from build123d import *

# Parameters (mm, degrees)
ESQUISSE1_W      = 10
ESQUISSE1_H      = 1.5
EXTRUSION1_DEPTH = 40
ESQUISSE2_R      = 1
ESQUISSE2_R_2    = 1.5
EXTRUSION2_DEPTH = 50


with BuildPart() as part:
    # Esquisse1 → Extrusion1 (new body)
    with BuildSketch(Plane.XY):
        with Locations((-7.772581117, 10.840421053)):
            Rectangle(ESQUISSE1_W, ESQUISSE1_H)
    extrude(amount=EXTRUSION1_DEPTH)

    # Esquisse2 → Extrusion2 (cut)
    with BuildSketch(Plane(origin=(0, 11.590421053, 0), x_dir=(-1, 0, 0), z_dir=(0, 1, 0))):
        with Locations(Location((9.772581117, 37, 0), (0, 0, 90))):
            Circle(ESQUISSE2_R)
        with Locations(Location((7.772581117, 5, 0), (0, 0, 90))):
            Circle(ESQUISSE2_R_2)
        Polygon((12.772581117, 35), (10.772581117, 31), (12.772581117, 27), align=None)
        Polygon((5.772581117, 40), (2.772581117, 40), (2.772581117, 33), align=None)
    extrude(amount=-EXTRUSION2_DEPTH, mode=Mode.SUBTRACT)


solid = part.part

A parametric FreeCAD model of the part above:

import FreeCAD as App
import Part
import Sketcher

V = App.Vector

doc = App.newDocument("Part")
body = doc.addObject("PartDesign::Body", "Body")

sketch1 = body.newObject("Sketcher::SketchObject", "Sketch")
sketch1.AttachmentSupport = (doc.getObject("XY_Plane"), [""])
sketch1.MapMode = "FlatFace"
sketch1.addGeometry(Part.LineSegment(V(-12.8, 11.6, 0), V(-12.8, 10.1, 0)), False)
sketch1.addGeometry(Part.LineSegment(V(-12.8, 10.1, 0), V(-2.8, 10.1, 0)), False)
sketch1.addGeometry(Part.LineSegment(V(-2.8, 10.1, 0), V(-2.8, 11.6, 0)), False)
sketch1.addGeometry(Part.LineSegment(V(-2.8, 11.6, 0), V(-12.8, 11.6, 0)), False)
sketch1.addConstraint(Sketcher.Constraint("Coincident", 0, 2, 1, 1))
sketch1.addConstraint(Sketcher.Constraint("Coincident", 1, 2, 2, 1))
sketch1.addConstraint(Sketcher.Constraint("Coincident", 2, 2, 3, 1))
sketch1.addConstraint(Sketcher.Constraint("Coincident", 3, 2, 0, 1))
sketch1.addConstraint(Sketcher.Constraint("Vertical", 0))
sketch1.addConstraint(Sketcher.Constraint("Horizontal", 1))
sketch1.addConstraint(Sketcher.Constraint("Vertical", 2))
sketch1.addConstraint(Sketcher.Constraint("Horizontal", 3))
sketch1.addConstraint(Sketcher.Constraint("DistanceX", 1, 1, 1, 2, 10.0))
sketch1.addConstraint(Sketcher.Constraint("DistanceY", 0, 2, 0, 1, 1.5))
sketch1.addConstraint(Sketcher.Constraint("DistanceX", 0, 2, -1, 1, 12.772581))
sketch1.addConstraint(Sketcher.Constraint("DistanceY", -1, 1, 0, 2, 10.090421))
pad1 = body.newObject("PartDesign::Pad", "Pad")
pad1.Profile = sketch1
pad1.Length = 40

sketch2 = body.newObject("Sketcher::SketchObject", "Sketch001")
sketch2.AttachmentSupport = (doc.getObject("XZ_Plane"), [""])
sketch2.MapMode = "FlatFace"
sketch2.AttachmentOffset = App.Placement(V(0, 0, -11.590421), App.Rotation())
sketch2.addGeometry(Part.Circle(V(-9.8, 37, 0), V(0, 0, 1), 1), False)
sketch2.addGeometry(Part.Circle(V(-7.8, 5, 0), V(0, 0, 1), 1.5), False)
sketch2.addGeometry(Part.LineSegment(V(-12.8, 35, 0), V(-10.8, 31, 0)), False)
sketch2.addGeometry(Part.LineSegment(V(-10.8, 31, 0), V(-12.8, 27, 0)), False)
sketch2.addGeometry(Part.LineSegment(V(-12.8, 27, 0), V(-12.8, 35, 0)), False)
sketch2.addGeometry(Part.LineSegment(V(-5.8, 40, 0), V(-2.8, 40, 0)), False)
sketch2.addGeometry(Part.LineSegment(V(-2.8, 40, 0), V(-2.8, 33, 0)), False)
sketch2.addGeometry(Part.LineSegment(V(-2.8, 33, 0), V(-5.8, 40, 0)), False)
sketch2.addConstraint(Sketcher.Constraint("Coincident", 2, 2, 3, 1))
sketch2.addConstraint(Sketcher.Constraint("Coincident", 3, 2, 4, 1))
sketch2.addConstraint(Sketcher.Constraint("Coincident", 4, 2, 2, 1))
sketch2.addConstraint(Sketcher.Constraint("Coincident", 5, 2, 6, 1))
sketch2.addConstraint(Sketcher.Constraint("Coincident", 6, 2, 7, 1))
sketch2.addConstraint(Sketcher.Constraint("Coincident", 7, 2, 5, 1))
sketch2.addConstraint(Sketcher.Constraint("Vertical", 4))
sketch2.addConstraint(Sketcher.Constraint("Horizontal", 5))
sketch2.addConstraint(Sketcher.Constraint("Vertical", 6))
sketch2.addConstraint(Sketcher.Constraint("Equal", 2, 3))
sketch2.addConstraint(Sketcher.Constraint("Diameter", 0, 2.0))
sketch2.addConstraint(Sketcher.Constraint("Diameter", 1, 3.0))
sketch2.addConstraint(Sketcher.Constraint("DistanceX", 5, 1, 5, 2, 3.0))
sketch2.addConstraint(Sketcher.Constraint("DistanceY", 4, 1, 4, 2, 8.0))
sketch2.addConstraint(Sketcher.Constraint("DistanceY", 6, 2, 6, 1, 7.0))
sketch2.addConstraint(Sketcher.Constraint("DistanceY", -1, 1, 0, 3, 37.0))
sketch2.addConstraint(Sketcher.Constraint("DistanceY", -1, 1, 1, 3, 5.0))
sketch2.addConstraint(Sketcher.Constraint("DistanceY", -1, 1, 2, 2, 31.0))
sketch2.addConstraint(Sketcher.Constraint("DistanceY", -1, 1, 5, 2, 40.0))
sketch2.addConstraint(Sketcher.Constraint("DistanceX", 0, 3, 1, 3, 2.0))
sketch2.addConstraint(Sketcher.Constraint("DistanceX", 2, 2, 0, 3, 1.0))
sketch2.addConstraint(Sketcher.Constraint("DistanceX", 3, 2, 2, 2, 2.0))
sketch2.addConstraint(Sketcher.Constraint("DistanceX", 0, 3, 5, 2, 7.0))
sketch2.addConstraint(Sketcher.Constraint("DistanceX", 0, 3, -1, 1, 9.772581))
pocket1 = body.newObject("PartDesign::Pocket", "Pocket")
pocket1.Profile = sketch2
pocket1.Length = 50
pocket1.Reversed = True

doc.recompute()
